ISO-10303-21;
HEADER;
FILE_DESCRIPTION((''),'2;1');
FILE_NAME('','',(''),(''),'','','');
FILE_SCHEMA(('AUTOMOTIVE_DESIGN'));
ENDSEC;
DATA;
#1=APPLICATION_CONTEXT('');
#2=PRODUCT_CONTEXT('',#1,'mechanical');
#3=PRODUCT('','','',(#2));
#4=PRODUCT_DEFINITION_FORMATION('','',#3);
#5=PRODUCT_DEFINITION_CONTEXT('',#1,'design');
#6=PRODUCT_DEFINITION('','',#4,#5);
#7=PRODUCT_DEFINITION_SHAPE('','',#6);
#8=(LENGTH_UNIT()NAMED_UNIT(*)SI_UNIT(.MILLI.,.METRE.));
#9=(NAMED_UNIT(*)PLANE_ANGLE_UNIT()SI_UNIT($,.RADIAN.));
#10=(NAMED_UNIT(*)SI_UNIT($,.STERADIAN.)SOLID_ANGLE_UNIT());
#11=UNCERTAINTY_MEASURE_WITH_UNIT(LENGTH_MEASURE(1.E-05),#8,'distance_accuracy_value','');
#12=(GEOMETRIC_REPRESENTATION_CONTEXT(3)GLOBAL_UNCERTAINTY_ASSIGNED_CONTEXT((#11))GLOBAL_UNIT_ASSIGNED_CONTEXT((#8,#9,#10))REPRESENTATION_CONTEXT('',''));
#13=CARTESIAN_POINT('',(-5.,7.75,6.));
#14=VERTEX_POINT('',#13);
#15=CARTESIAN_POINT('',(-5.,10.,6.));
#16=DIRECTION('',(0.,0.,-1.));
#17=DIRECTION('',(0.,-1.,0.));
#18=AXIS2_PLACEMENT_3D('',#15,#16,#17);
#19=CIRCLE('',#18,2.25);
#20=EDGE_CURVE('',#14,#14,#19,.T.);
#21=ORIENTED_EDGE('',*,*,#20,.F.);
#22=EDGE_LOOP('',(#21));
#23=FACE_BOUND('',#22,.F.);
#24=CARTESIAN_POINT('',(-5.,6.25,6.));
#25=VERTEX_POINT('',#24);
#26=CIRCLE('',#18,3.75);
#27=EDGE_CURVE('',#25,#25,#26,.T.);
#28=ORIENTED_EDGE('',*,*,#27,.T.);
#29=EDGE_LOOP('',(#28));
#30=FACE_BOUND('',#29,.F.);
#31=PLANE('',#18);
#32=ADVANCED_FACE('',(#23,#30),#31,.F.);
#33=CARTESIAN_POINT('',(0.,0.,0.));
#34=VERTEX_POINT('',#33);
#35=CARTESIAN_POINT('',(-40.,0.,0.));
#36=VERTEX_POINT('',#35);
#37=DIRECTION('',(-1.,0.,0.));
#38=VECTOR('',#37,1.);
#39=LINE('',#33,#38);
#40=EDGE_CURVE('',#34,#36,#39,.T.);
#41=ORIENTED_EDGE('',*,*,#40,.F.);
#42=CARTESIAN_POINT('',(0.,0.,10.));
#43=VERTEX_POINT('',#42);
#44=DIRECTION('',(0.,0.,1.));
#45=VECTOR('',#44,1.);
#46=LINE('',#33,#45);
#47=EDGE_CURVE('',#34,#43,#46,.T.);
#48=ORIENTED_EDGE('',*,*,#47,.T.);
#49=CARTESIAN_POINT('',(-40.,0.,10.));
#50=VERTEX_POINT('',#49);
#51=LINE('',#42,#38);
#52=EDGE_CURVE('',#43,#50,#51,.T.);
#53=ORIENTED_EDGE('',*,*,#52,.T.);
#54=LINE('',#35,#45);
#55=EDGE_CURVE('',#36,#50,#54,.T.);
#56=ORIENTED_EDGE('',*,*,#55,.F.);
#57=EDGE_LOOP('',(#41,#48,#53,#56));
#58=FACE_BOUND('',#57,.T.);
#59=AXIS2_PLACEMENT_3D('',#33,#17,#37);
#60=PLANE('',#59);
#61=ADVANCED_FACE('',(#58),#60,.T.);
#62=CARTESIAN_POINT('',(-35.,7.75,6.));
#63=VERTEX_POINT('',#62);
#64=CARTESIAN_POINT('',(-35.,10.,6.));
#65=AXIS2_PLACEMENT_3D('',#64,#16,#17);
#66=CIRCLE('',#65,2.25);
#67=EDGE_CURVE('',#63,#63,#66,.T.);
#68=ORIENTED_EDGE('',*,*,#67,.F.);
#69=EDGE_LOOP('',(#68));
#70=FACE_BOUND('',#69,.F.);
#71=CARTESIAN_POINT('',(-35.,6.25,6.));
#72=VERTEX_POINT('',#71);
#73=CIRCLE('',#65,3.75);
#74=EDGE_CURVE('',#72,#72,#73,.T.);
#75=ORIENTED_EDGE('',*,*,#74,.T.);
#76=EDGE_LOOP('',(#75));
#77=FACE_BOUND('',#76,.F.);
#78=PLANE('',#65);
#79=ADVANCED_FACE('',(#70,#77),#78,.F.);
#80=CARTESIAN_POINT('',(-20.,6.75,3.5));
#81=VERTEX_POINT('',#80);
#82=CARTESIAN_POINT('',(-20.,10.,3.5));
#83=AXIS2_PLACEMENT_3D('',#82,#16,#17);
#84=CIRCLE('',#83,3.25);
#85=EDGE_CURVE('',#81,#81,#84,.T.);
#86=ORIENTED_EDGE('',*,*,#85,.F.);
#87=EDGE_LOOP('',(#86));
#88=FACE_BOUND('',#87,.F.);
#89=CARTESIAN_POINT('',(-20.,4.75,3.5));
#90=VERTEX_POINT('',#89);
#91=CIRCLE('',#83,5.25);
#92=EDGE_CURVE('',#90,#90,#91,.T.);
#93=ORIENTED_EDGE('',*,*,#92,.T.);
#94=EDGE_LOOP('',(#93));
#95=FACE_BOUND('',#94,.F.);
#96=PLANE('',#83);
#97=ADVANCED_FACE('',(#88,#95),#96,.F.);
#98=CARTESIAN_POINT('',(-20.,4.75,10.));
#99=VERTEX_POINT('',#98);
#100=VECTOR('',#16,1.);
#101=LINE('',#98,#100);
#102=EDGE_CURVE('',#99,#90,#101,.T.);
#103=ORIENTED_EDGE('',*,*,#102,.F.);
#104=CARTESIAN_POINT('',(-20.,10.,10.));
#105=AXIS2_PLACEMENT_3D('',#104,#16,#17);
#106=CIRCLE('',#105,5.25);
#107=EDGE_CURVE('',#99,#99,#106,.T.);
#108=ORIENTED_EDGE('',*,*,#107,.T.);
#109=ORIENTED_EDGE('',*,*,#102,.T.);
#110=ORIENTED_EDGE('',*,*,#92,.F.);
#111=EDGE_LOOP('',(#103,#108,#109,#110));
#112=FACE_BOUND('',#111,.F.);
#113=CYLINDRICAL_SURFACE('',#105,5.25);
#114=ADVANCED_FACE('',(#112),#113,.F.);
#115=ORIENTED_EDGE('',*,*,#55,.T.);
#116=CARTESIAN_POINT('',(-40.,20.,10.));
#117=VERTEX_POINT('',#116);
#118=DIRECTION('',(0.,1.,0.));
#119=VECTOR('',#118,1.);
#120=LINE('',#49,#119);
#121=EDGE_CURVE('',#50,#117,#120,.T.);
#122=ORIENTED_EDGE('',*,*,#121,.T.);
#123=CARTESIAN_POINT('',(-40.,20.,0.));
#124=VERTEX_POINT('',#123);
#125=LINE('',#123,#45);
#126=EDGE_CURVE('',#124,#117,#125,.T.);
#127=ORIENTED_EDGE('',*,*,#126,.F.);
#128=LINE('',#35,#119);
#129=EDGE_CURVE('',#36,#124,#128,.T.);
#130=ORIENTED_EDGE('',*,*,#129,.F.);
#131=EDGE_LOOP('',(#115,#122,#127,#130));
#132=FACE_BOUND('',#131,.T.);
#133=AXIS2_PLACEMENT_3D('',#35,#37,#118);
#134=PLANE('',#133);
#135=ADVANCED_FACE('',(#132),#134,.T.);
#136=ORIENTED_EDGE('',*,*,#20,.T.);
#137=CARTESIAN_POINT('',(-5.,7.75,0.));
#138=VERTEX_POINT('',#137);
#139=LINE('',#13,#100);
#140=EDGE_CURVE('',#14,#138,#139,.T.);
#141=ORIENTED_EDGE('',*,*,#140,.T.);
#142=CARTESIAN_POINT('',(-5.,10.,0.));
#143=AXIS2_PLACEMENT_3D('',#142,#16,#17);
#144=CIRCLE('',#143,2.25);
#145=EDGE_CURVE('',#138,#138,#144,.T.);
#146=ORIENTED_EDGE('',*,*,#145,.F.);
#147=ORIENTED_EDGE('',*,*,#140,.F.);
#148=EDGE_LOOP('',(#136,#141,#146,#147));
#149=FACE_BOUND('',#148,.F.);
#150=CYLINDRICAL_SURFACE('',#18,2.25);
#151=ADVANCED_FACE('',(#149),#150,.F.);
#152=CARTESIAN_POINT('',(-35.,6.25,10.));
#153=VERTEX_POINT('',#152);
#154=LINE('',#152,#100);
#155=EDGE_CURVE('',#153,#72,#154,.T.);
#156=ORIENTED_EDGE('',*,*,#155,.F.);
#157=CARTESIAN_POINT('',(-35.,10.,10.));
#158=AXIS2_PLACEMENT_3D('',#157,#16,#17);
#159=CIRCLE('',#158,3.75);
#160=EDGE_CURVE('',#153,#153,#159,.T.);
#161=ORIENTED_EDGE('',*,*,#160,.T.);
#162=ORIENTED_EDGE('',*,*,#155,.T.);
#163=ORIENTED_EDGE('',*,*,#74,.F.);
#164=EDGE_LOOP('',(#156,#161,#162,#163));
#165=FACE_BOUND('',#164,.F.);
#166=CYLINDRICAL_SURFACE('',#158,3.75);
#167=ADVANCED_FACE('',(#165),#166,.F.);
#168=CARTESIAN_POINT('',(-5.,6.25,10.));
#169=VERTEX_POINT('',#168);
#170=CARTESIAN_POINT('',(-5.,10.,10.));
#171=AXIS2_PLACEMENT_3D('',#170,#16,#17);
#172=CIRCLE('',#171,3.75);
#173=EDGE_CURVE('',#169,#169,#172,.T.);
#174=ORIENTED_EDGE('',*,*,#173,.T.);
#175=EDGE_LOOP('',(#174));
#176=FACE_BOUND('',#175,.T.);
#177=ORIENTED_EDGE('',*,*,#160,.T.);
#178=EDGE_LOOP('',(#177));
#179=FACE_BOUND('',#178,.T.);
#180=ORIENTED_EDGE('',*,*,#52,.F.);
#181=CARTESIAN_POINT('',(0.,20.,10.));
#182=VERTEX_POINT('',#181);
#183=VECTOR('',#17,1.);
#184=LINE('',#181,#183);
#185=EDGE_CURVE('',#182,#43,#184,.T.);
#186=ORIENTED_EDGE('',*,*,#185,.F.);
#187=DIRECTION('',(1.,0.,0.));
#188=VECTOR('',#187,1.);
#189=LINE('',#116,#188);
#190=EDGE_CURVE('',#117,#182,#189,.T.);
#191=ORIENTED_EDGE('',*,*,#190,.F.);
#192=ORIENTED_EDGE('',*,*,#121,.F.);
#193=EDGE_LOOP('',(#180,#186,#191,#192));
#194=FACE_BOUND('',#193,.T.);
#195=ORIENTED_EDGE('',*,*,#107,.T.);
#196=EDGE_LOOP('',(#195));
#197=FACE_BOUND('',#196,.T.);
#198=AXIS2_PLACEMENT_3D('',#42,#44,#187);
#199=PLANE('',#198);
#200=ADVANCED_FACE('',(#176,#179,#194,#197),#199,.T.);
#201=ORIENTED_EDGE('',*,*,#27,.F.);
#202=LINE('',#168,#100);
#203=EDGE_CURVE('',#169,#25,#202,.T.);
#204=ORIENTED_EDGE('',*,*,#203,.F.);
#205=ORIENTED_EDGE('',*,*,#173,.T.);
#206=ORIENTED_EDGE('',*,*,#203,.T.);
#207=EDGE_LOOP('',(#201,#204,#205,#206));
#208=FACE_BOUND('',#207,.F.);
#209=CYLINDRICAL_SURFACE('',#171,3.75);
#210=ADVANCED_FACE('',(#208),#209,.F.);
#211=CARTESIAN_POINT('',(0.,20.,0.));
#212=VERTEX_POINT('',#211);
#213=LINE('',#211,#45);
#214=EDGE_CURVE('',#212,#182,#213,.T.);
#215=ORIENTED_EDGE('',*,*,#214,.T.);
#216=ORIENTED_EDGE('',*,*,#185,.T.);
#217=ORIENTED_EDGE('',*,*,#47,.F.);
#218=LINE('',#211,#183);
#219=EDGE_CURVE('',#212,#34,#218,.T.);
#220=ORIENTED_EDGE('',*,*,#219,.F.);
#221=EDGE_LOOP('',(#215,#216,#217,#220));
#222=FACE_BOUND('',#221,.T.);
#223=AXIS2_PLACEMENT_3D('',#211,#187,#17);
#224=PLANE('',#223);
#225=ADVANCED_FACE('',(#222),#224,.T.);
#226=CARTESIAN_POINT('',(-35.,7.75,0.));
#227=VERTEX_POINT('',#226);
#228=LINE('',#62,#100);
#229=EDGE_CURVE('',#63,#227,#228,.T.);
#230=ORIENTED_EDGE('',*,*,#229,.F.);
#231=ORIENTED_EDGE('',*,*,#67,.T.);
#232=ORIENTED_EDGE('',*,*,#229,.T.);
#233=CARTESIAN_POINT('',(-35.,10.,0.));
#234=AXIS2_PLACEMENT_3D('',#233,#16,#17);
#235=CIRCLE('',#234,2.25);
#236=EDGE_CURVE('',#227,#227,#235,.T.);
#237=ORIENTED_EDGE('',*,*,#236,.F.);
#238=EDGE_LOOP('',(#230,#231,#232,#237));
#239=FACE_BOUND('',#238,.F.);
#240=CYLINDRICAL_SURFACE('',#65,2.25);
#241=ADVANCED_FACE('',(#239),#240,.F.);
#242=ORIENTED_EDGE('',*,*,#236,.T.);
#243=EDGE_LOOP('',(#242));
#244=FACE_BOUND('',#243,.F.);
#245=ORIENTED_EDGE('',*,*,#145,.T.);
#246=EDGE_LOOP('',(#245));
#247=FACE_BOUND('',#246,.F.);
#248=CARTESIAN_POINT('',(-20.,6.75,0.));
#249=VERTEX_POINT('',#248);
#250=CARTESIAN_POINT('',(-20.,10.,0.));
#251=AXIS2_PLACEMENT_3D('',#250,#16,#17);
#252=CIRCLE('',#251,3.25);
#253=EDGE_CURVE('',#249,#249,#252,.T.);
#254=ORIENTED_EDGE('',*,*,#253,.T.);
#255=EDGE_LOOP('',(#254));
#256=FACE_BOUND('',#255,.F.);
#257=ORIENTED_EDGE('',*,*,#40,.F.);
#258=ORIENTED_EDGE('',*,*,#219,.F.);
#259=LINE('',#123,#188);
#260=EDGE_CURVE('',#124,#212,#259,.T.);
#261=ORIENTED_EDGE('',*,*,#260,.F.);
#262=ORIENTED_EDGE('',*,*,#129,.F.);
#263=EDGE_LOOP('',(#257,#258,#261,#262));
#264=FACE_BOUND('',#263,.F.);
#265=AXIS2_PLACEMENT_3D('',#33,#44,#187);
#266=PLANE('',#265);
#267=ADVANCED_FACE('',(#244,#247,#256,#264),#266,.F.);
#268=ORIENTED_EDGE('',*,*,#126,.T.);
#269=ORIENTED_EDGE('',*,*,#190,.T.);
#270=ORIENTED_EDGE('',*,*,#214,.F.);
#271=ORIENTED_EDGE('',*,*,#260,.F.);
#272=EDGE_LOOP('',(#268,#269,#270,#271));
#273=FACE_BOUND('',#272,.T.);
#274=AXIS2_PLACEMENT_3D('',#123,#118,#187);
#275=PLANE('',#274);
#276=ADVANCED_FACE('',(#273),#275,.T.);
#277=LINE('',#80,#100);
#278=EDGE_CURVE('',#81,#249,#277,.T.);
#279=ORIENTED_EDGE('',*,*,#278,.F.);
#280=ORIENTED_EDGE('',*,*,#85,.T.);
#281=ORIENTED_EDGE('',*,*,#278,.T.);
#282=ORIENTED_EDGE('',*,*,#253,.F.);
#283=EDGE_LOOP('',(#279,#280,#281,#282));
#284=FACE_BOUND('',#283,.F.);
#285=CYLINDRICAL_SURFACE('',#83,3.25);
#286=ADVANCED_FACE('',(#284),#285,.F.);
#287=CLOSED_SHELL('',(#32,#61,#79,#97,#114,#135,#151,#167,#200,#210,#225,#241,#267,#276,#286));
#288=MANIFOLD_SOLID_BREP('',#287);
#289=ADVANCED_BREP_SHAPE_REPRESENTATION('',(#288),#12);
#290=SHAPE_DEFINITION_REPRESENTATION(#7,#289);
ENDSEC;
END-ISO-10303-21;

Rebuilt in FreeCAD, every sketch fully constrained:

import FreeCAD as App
import Part
import Sketcher

V = App.Vector

doc = App.newDocument("Part")
body = doc.addObject("PartDesign::Body", "Body")

sketch1 = body.newObject("Sketcher::SketchObject", "Sketch")
sketch1.AttachmentSupport = (doc.getObject("XY_Plane"), [""])
sketch1.MapMode = "FlatFace"
sketch1.addGeometry(Part.LineSegment(V(-40, 0, 0), V(0, 0, 0)), False)
sketch1.addGeometry(Part.LineSegment(V(0, 0, 0), V(0, 20, 0)), False)
sketch1.addGeometry(Part.LineSegment(V(0, 20, 0), V(-40, 20, 0)), False)
sketch1.addGeometry(Part.LineSegment(V(-40, 20, 0), V(-40, 0, 0)), False)
sketch1.addConstraint(Sketcher.Constraint("Coincident", 0, 2, 1, 1))
sketch1.addConstraint(Sketcher.Constraint("Coincident", 1, 2, 2, 1))
sketch1.addConstraint(Sketcher.Constraint("Coincident", 2, 2, 3, 1))
sketch1.addConstraint(Sketcher.Constraint("Coincident", 3, 2, 0, 1))
sketch1.addConstraint(Sketcher.Constraint("Horizontal", 0))
sketch1.addConstraint(Sketcher.Constraint("Vertical", 1))
sketch1.addConstraint(Sketcher.Constraint("Horizontal", 2))
sketch1.addConstraint(Sketcher.Constraint("Vertical", 3))
sketch1.addConstraint(Sketcher.Constraint("Coincident", 0, 2, -1, 1))
sketch1.addConstraint(Sketcher.Constraint("DistanceX", 0, 1, 0, 2, 40.0))
sketch1.addConstraint(Sketcher.Constraint("DistanceY", 1, 1, 1, 2, 20.0))
pad1 = body.newObject("PartDesign::Pad", "Pad")
pad1.Profile = sketch1
pad1.Length = 10

sketch2 = body.newObject("Sketcher::SketchObject", "Sketch001")
sketch2.AttachmentSupport = (doc.getObject("XY_Plane"), [""])
sketch2.MapMode = "FlatFace"
sketch2.AttachmentOffset = App.Placement(V(0, 0, 10), App.Rotation())
sketch2.addGeometry(Part.Circle(V(-20, 10, 0), V(0, 0, 1), 3.2), False)
sketch2.addConstraint(Sketcher.Constraint("Diameter", 0, 6.5))
sketch2.addConstraint(Sketcher.Constraint("DistanceX", 0, 3, -1, 1, 20.0))
sketch2.addConstraint(Sketcher.Constraint("DistanceY", -1, 1, 0, 3, 10.0))
doc.recompute()
hole = body.newObject("PartDesign::Hole", "Hole")
hole.Profile = sketch2
hole.ThreadType = "None"
hole.Diameter = 6.5
hole.DepthType = "Dimension"
hole.Depth = 10
hole.DrillPoint = "Angled"
hole.DrillPointAngle = 118
hole.HoleCutType = "Counterbore"
hole.HoleCutDiameter = 10.5
hole.HoleCutDepth = 6.5

sketch3 = body.newObject("Sketcher::SketchObject", "Sketch002")
sketch3.AttachmentSupport = (doc.getObject("XY_Plane"), [""])
sketch3.MapMode = "FlatFace"
sketch3.AttachmentOffset = App.Placement(V(0, 0, 10), App.Rotation())
sketch3.addGeometry(Part.Circle(V(-35, 10, 0), V(0, 0, 1), 2.2), False)
sketch3.addConstraint(Sketcher.Constraint("Diameter", 0, 4.5))
sketch3.addConstraint(Sketcher.Constraint("DistanceX", 0, 3, -1, 1, 35.0))
sketch3.addConstraint(Sketcher.Constraint("DistanceY", -1, 1, 0, 3, 10.0))
doc.recompute()
hole2 = body.newObject("PartDesign::Hole", "Hole001")
hole2.Profile = sketch3
hole2.ThreadType = "None"
hole2.Diameter = 4.5
hole2.DepthType = "Dimension"
hole2.Depth = 10
hole2.DrillPoint = "Angled"
hole2.DrillPointAngle = 118
hole2.HoleCutType = "Counterbore"
hole2.HoleCutDiameter = 7.5
hole2.HoleCutDepth = 4

sketch4 = body.newObject("Sketcher::SketchObject", "Sketch003")
sketch4.AttachmentSupport = (doc.getObject("XY_Plane"), [""])
sketch4.MapMode = "FlatFace"
sketch4.AttachmentOffset = App.Placement(V(0, 0, 10), App.Rotation())
sketch4.addGeometry(Part.Circle(V(-5, 10, 0), V(0, 0, 1), 2.2), False)
sketch4.addConstraint(Sketcher.Constraint("Diameter", 0, 4.5))
sketch4.addConstraint(Sketcher.Constraint("DistanceX", 0, 3, -1, 1, 5.0))
sketch4.addConstraint(Sketcher.Constraint("DistanceY", -1, 1, 0, 3, 10.0))
doc.recompute()
hole3 = body.newObject("PartDesign::Hole", "Hole002")
hole3.Profile = sketch4
hole3.ThreadType = "None"
hole3.Diameter = 4.5
hole3.DepthType = "Dimension"
hole3.Depth = 10
hole3.DrillPoint = "Angled"
hole3.DrillPointAngle = 118
hole3.HoleCutType = "Counterbore"
hole3.HoleCutDiameter = 7.5
hole3.HoleCutDepth = 4

doc.recompute()
